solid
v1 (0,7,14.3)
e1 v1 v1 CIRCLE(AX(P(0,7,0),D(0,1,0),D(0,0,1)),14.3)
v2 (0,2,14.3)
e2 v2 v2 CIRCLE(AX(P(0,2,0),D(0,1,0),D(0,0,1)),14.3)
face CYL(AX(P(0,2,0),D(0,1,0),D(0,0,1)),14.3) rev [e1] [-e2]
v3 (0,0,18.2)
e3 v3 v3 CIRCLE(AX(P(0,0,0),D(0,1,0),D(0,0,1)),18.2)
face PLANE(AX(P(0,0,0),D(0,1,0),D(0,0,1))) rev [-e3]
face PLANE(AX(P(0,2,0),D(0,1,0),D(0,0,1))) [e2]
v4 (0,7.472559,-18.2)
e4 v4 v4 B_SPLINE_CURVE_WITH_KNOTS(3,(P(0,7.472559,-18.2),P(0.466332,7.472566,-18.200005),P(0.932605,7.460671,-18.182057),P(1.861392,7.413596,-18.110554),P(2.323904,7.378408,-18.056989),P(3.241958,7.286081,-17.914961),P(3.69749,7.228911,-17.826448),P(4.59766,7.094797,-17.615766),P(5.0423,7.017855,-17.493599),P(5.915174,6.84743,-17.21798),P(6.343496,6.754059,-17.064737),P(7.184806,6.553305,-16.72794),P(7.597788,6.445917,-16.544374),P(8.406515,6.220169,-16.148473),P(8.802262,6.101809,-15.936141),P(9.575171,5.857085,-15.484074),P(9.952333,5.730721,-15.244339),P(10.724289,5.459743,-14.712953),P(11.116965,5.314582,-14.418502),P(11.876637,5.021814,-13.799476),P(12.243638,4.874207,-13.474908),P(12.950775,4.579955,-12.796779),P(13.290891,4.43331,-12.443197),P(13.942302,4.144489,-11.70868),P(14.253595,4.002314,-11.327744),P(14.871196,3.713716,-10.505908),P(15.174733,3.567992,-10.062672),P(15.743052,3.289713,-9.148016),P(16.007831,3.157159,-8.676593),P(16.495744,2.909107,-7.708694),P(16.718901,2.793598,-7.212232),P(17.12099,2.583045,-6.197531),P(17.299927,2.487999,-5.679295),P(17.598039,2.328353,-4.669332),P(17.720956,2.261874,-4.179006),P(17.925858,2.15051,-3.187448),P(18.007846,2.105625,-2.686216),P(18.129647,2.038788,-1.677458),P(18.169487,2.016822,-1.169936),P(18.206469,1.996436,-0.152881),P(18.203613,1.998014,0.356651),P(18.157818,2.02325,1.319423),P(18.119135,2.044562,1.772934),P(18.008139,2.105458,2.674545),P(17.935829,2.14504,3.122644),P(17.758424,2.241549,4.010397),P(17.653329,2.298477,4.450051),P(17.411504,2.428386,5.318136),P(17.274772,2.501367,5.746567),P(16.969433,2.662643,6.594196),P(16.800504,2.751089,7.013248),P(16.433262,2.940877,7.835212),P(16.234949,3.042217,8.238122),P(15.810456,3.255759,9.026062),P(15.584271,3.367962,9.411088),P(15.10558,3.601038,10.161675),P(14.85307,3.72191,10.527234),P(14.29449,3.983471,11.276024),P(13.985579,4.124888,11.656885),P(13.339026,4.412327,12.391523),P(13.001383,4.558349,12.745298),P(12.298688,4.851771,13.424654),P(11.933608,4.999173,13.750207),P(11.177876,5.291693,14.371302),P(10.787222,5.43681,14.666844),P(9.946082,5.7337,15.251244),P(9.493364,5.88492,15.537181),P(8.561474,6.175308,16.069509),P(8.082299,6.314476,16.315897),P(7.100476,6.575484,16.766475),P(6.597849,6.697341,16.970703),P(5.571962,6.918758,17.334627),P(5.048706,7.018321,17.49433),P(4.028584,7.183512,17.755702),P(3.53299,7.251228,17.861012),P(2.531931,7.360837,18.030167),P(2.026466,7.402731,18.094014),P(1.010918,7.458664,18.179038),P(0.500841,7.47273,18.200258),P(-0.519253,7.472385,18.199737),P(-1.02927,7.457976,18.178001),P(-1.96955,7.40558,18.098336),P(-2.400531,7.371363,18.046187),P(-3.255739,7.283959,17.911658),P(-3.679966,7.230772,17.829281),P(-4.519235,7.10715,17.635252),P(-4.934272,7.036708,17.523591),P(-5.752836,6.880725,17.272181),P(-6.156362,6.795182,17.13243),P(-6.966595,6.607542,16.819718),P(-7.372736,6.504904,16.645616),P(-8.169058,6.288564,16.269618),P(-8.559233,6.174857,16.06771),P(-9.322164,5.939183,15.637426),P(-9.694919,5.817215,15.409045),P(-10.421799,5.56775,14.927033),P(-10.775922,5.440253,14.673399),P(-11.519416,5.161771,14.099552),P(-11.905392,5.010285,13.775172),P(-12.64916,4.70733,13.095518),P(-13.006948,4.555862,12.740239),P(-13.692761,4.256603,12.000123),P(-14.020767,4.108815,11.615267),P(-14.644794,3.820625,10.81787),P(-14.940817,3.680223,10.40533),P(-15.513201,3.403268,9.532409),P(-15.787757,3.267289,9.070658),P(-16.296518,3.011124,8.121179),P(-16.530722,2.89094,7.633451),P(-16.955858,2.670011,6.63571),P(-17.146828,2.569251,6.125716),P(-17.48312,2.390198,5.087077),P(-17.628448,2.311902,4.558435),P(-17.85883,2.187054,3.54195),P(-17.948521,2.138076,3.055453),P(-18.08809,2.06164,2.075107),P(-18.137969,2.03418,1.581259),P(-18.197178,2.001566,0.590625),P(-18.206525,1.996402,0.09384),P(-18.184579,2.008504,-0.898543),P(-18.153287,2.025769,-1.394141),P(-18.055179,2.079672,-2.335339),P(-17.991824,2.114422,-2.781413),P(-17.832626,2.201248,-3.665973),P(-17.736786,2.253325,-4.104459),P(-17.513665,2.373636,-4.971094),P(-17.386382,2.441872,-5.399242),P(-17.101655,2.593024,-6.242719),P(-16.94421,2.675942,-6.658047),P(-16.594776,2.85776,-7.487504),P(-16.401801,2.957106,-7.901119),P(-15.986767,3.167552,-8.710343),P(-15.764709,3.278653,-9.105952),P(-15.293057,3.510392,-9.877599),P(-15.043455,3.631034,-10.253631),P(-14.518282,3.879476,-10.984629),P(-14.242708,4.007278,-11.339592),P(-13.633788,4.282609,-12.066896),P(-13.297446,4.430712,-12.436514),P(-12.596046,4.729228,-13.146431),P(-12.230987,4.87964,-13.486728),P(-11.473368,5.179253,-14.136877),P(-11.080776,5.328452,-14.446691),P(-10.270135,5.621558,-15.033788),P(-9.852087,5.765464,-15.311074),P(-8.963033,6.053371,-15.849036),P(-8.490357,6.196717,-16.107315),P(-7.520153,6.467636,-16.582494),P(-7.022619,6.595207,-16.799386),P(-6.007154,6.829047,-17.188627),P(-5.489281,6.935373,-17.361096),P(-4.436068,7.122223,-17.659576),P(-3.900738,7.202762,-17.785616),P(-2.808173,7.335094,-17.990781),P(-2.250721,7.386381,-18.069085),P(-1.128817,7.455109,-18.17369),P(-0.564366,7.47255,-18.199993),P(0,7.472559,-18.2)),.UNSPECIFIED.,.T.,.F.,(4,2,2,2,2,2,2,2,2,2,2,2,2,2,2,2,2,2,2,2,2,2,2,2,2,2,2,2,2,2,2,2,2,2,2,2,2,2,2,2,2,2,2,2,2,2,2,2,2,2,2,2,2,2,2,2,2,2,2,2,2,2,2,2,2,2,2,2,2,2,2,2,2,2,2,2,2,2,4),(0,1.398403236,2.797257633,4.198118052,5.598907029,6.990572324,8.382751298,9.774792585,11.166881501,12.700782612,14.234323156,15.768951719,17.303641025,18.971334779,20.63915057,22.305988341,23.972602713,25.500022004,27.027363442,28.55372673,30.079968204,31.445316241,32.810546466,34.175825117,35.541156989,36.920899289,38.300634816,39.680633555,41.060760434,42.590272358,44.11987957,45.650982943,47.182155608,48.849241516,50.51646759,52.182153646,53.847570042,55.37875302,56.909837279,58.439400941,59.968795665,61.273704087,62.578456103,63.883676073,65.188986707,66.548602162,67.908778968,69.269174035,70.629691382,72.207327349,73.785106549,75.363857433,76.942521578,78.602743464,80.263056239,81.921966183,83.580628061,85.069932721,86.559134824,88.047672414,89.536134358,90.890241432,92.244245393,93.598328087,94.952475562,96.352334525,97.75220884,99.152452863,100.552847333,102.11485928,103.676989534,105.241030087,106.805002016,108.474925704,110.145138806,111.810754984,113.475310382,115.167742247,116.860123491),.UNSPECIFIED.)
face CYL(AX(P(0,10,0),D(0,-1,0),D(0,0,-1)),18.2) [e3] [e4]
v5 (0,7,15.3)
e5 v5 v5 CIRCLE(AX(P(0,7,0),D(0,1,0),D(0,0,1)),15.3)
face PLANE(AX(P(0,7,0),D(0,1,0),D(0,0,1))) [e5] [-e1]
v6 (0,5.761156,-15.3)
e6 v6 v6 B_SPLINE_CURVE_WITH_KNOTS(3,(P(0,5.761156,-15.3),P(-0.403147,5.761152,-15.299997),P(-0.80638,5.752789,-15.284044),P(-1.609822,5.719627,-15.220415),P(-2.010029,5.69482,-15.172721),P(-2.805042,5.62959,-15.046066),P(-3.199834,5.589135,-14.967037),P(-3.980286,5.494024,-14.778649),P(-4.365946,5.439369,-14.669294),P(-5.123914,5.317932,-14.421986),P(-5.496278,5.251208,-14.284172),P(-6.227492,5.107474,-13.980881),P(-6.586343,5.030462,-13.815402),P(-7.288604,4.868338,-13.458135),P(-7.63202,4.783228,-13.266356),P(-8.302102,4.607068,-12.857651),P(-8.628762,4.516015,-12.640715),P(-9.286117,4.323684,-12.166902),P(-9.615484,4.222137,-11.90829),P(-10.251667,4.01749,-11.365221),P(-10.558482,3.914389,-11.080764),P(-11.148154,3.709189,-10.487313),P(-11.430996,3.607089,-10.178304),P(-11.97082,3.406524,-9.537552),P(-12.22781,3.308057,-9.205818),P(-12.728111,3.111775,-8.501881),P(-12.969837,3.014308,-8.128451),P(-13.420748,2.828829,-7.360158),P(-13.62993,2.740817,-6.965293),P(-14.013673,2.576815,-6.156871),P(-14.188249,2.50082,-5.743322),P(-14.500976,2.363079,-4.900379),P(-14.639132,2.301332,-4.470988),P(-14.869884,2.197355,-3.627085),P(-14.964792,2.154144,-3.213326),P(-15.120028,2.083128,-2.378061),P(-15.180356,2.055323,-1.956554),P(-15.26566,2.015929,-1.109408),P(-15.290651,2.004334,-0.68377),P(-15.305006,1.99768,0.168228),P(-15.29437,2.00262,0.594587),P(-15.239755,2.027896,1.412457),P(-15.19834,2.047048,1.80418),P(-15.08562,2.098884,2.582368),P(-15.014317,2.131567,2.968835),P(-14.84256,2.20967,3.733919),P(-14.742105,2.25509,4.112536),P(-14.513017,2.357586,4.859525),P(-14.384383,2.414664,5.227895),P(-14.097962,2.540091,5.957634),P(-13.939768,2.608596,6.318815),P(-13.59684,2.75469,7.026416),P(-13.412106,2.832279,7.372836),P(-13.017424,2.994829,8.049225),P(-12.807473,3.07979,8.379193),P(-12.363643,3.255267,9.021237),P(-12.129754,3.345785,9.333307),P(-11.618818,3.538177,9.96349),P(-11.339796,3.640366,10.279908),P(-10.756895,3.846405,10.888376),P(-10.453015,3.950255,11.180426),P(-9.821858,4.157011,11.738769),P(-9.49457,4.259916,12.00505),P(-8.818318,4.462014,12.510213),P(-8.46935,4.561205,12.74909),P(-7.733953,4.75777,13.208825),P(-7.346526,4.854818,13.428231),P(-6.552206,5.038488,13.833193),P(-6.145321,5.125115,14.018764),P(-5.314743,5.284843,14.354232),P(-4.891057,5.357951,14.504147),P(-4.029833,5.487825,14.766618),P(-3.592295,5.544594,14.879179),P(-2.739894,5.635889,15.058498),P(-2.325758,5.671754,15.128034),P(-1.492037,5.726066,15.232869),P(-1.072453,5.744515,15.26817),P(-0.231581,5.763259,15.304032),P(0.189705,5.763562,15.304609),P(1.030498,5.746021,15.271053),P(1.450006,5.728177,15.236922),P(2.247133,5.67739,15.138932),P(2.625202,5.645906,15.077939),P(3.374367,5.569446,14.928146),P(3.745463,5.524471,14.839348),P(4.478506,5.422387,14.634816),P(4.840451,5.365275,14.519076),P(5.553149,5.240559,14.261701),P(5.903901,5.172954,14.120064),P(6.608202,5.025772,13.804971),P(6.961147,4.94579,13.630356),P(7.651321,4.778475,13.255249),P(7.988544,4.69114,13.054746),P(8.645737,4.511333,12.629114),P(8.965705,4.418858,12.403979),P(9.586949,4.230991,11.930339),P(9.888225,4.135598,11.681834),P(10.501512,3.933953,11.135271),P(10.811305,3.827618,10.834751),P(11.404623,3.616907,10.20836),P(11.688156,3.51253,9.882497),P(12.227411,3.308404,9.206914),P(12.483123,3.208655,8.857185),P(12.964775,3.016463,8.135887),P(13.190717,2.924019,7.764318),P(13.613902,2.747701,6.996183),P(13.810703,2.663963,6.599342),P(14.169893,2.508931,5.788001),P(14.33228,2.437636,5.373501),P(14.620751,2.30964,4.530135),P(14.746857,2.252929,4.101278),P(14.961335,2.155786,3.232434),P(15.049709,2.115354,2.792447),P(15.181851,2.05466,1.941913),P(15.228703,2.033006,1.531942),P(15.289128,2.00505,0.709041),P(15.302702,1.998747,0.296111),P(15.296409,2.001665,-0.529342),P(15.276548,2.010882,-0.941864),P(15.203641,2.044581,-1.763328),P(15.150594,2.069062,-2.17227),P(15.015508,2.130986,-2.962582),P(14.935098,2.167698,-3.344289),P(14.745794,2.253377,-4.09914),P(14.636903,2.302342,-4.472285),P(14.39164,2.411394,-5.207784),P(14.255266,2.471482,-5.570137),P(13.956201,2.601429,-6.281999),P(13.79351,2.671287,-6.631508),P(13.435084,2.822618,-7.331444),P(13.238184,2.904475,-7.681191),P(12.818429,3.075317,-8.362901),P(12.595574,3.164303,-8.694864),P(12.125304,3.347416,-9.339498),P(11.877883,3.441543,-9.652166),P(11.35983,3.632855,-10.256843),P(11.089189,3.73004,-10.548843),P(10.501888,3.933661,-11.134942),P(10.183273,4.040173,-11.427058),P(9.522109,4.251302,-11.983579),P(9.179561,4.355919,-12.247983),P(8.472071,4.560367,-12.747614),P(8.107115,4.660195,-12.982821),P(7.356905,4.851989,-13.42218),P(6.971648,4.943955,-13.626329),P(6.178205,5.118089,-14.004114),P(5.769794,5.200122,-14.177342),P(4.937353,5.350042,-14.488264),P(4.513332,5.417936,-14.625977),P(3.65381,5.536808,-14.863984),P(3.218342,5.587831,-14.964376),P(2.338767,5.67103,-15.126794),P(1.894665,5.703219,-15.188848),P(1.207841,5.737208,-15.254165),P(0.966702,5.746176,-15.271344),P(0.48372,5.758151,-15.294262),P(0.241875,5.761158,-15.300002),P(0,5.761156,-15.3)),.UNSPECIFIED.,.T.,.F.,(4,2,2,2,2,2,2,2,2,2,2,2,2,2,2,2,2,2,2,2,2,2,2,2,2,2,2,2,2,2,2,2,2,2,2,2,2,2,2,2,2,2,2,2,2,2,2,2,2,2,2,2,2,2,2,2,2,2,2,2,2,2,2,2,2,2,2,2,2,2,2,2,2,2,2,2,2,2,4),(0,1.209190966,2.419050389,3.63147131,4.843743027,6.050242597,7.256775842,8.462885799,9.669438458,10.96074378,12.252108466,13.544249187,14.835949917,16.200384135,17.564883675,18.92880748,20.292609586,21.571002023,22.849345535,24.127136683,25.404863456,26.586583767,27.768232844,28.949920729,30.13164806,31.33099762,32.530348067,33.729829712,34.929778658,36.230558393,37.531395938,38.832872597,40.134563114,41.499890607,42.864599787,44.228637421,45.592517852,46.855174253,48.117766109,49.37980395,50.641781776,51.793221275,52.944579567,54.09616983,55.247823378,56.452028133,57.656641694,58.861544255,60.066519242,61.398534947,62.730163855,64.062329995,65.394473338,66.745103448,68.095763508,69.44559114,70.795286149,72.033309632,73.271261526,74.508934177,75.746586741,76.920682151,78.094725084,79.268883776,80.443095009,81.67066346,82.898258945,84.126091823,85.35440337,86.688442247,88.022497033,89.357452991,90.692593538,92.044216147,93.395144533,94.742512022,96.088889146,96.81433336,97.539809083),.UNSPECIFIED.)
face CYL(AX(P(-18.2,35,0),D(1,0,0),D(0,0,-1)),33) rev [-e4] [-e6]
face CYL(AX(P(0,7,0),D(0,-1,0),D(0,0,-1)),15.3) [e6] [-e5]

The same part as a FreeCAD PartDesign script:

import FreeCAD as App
import Part
import Sketcher
from FreeCAD import Vector
Q = App.Units.Quantity

doc = App.newDocument("Part")
params = doc.addObject("Spreadsheet::Sheet", "Params")
for row, (alias, value) in enumerate([
    ("sketch1_diameter", "36.4 mm"),
    ("pad1_length", "10 mm"),
    ("sketch2_diameter", "66 mm"),
    ("sketch3_diameter", "30.6 mm"),
    ("pad2_length", "7 mm"),
    ("sketch4_diameter", "28.6 mm"),
    ("pocket2_length", "5 mm"),
], start=1):
    params.set(f"A{row}", alias)
    params.set(f"B{row}", "=" + value)
    params.setAlias(f"B{row}", alias)

body = doc.addObject("PartDesign::Body", "Body")

# Sketch on XZ plane
sketch1 = body.newObject("Sketcher::SketchObject", "Sketch")
sketch1.AttachmentSupport = (doc.getObject("XZ_Plane"), [""])
sketch1.MapMode = "FlatFace"
sketch1.addGeometry(Part.Circle(Vector(0, 0, 0), Vector(0, 0, 1), 18), False)
sketch1.addConstraint(Sketcher.Constraint("Coincident", 0, 3, -1, 1))
sketch1.addConstraint(Sketcher.Constraint("Diameter", 0, Q("36.4 mm")))
sketch1.setExpression("Constraints[1]", "Params.sketch1_diameter")
pad1 = body.newObject("PartDesign::Pad", "Pad")
pad1.Profile = sketch1
pad1.setExpression("Length", "Params.pad1_length")
pad1.Reversed = True

# Sketch on YZ plane
sketch2 = body.newObject("Sketcher::SketchObject", "Sketch001")
sketch2.AttachmentSupport = (doc.getObject("YZ_Plane"), [""])
sketch2.MapMode = "FlatFace"
sketch2.addGeometry(Part.Circle(Vector(35, 0, 0), Vector(0, 0, 1), 33), False)
sketch2.addConstraint(Sketcher.Constraint("PointOnObject", 0, 3, -1))
sketch2.addConstraint(Sketcher.Constraint("Diameter", 0, Q("66 mm")))
sketch2.addConstraint(Sketcher.Constraint("DistanceX", -1, 1, 0, 3, Q("35 mm")))
sketch2.setExpression("Constraints[1]", "Params.sketch2_diameter")
pocket1 = body.newObject("PartDesign::Pocket", "Pocket")
pocket1.Profile = sketch2
pocket1.Type = "ThroughAll"
pocket1.Midplane = True

# Sketch on XZ plane
sketch3 = body.newObject("Sketcher::SketchObject", "Sketch002")
sketch3.AttachmentSupport = (doc.getObject("XZ_Plane"), [""])
sketch3.MapMode = "FlatFace"
sketch3.addGeometry(Part.Circle(Vector(0, 0, 0), Vector(0, 0, 1), 15), False)
sketch3.addConstraint(Sketcher.Constraint("Coincident", 0, 3, -1, 1))
sketch3.addConstraint(Sketcher.Constraint("Diameter", 0, Q("30.6 mm")))
sketch3.setExpression("Constraints[1]", "Params.sketch3_diameter")
pad2 = body.newObject("PartDesign::Pad", "Pad001")
pad2.Profile = sketch3
pad2.setExpression("Length", "Params.pad2_length")
pad2.Reversed = True

# Sketch on XZ plane
sketch4 = body.newObject("Sketcher::SketchObject", "Sketch003")
sketch4.AttachmentSupport = (doc.getObject("XZ_Plane"), [""])
sketch4.MapMode = "FlatFace"
sketch4.AttachmentOffset = App.Placement(Vector(0, 0, -7), App.Rotation())
sketch4.addGeometry(Part.Circle(Vector(0, 0, 0), Vector(0, 0, 1), 14), False)
sketch4.addConstraint(Sketcher.Constraint("Coincident", 0, 3, -1, 1))
sketch4.addConstraint(Sketcher.Constraint("Diameter", 0, Q("28.6 mm")))
sketch4.setExpression("Constraints[1]", "Params.sketch4_diameter")
pocket2 = body.newObject("PartDesign::Pocket", "Pocket001")
pocket2.Profile = sketch4
pocket2.setExpression("Length", "Params.pocket2_length")
pocket2.Reversed = True

doc.recompute()
